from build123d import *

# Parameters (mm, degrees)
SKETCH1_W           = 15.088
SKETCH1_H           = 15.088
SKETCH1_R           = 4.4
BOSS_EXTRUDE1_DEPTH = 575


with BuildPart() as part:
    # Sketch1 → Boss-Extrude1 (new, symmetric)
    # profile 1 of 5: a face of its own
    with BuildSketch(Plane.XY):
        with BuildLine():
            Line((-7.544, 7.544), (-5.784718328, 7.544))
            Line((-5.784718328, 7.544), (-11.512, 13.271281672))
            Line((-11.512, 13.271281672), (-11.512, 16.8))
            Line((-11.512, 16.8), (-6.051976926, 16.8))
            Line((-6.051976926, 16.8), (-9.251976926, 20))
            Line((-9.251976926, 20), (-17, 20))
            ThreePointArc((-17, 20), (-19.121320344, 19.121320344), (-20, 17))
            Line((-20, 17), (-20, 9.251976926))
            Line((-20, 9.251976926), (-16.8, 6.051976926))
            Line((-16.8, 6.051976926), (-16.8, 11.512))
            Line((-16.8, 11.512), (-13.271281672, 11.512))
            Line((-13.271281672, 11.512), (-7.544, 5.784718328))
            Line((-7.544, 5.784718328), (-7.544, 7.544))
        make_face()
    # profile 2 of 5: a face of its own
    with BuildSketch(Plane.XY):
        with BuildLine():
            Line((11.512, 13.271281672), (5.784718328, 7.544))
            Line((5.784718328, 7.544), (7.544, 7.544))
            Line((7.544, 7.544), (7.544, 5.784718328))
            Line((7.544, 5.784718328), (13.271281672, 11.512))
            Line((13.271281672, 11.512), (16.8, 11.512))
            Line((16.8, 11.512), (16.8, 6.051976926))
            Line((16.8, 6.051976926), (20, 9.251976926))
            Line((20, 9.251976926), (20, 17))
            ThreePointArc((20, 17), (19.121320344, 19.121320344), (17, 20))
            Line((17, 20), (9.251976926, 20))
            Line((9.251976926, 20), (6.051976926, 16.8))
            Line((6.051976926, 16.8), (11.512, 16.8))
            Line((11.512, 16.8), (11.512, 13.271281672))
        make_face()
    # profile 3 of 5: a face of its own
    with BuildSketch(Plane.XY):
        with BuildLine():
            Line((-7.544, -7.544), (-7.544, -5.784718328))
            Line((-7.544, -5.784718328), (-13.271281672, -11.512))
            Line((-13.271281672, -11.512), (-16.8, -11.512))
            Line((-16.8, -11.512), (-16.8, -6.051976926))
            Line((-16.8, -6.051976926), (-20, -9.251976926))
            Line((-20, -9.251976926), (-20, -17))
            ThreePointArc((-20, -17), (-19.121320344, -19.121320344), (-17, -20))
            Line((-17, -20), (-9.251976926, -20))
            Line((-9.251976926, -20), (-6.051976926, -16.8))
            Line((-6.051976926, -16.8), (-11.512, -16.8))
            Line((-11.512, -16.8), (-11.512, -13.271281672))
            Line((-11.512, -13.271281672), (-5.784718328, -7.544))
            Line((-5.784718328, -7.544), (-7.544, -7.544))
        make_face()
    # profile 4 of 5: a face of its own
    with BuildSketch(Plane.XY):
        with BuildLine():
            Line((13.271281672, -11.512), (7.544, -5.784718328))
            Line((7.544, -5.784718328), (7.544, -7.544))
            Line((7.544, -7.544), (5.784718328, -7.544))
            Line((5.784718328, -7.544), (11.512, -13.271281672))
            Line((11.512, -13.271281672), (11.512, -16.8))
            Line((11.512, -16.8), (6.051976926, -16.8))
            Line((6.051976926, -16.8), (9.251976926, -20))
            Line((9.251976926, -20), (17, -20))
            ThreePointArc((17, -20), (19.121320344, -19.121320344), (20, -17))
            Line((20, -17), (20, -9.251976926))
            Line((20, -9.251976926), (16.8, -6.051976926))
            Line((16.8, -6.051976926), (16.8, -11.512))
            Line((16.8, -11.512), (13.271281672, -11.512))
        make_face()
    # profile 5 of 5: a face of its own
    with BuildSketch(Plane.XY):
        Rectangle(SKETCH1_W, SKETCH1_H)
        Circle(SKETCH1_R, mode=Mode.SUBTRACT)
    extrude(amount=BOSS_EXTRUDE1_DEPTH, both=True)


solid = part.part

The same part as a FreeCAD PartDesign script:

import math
import FreeCAD as App
import Part
import Sketcher
Q = App.Units.Quantity

doc = App.newDocument("Part")
body = doc.addObject("PartDesign::Body", "Body")

# Sketch on XY plane
sketch1 = body.newObject("Sketcher::SketchObject", "Sketch")
sketch1.AttachmentSupport = (doc.getObject("XY_Plane"), [""])
sketch1.MapMode = "FlatFace"
sketch1.addGeometry(Part.LineSegment(App.Vector(-5.8, 7.5, 0), App.Vector(-11.5, 13.3, 0)), False)
sketch1.addGeometry(Part.LineSegment(App.Vector(-11.5, 13.3, 0), App.Vector(-11.5, 16.8, 0)), False)
sketch1.addGeometry(Part.LineSegment(App.Vector(-11.5, 16.8, 0), App.Vector(-6.1, 16.8, 0)), False)
sketch1.addGeometry(Part.LineSegment(App.Vector(-6.1, 16.8, 0), App.Vector(-9.3, 20, 0)), False)
sketch1.addGeometry(Part.LineSegment(App.Vector(-9.3, 20, 0), App.Vector(-17, 20, 0)), False)
sketch1.addGeometry(Part.ArcOfCircle(Part.Circle(App.Vector(-17, 17, 0), App.Vector(0, 0, 1), 3), math.radians(90), math.radians(180)), False)
sketch1.addGeometry(Part.LineSegment(App.Vector(-20, 17, 0), App.Vector(-20, 9.3, 0)), False)
sketch1.addGeometry(Part.LineSegment(App.Vector(-20, 9.3, 0), App.Vector(-16.8, 6.1, 0)), False)
sketch1.addGeometry(Part.LineSegment(App.Vector(-16.8, 6.1, 0), App.Vector(-16.8, 11.5, 0)), False)
sketch1.addGeometry(Part.LineSegment(App.Vector(-16.8, 11.5, 0), App.Vector(-13.3, 11.5, 0)), False)
sketch1.addGeometry(Part.LineSegment(App.Vector(-13.3, 11.5, 0), App.Vector(-7.5, 5.8, 0)), False)
sketch1.addGeometry(Part.LineSegment(App.Vector(-7.5, 5.8, 0), App.Vector(-7.5, -5.8, 0)), False)
sketch1.addGeometry(Part.LineSegment(App.Vector(-7.5, -5.8, 0), App.Vector(-13.3, -11.5, 0)), False)
sketch1.addGeometry(Part.LineSegment(App.Vector(-13.3, -11.5, 0), App.Vector(-16.8, -11.5, 0)), False)
sketch1.addGeometry(Part.LineSegment(App.Vector(-16.8, -11.5, 0), App.Vector(-16.8, -6.1, 0)), False)
sketch1.addGeometry(Part.LineSegment(App.Vector(-16.8, -6.1, 0), App.Vector(-20, -9.3, 0)), False)
sketch1.addGeometry(Part.LineSegment(App.Vector(-20, -9.3, 0), App.Vector(-20, -17, 0)), False)
sketch1.addGeometry(Part.ArcOfCircle(Part.Circle(App.Vector(-17, -17, 0), App.Vector(0, 0, 1), 3), math.radians(180), math.radians(270)), False)
sketch1.addGeometry(Part.LineSegment(App.Vector(-17, -20, 0), App.Vector(-9.3, -20, 0)), False)
sketch1.addGeometry(Part.LineSegment(App.Vector(-9.3, -20, 0), App.Vector(-6.1, -16.8, 0)), False)
sketch1.addGeometry(Part.LineSegment(App.Vector(-6.1, -16.8, 0), App.Vector(-11.5, -16.8, 0)), False)
sketch1.addGeometry(Part.LineSegment(App.Vector(-11.5, -16.8, 0), App.Vector(-11.5, -13.3, 0)), False)
sketch1.addGeometry(Part.LineSegment(App.Vector(-11.5, -13.3, 0), App.Vector(-5.8, -7.5, 0)), False)
sketch1.addGeometry(Part.LineSegment(App.Vector(-5.8, -7.5, 0), App.Vector(5.8, -7.5, 0)), False)
sketch1.addGeometry(Part.LineSegment(App.Vector(5.8, -7.5, 0), App.Vector(11.5, -13.3, 0)), False)
sketch1.addGeometry(Part.LineSegment(App.Vector(11.5, -13.3, 0), App.Vector(11.5, -16.8, 0)), False)
sketch1.addGeometry(Part.LineSegment(App.Vector(11.5, -16.8, 0), App.Vector(6.1, -16.8, 0)), False)
sketch1.addGeometry(Part.LineSegment(App.Vector(6.1, -16.8, 0), App.Vector(9.3, -20, 0)), False)
sketch1.addGeometry(Part.LineSegment(App.Vector(9.3, -20, 0), App.Vector(17, -20, 0)), False)
sketch1.addGeometry(Part.ArcOfCircle(Part.Circle(App.Vector(17, -17, 0), App.Vector(0, 0, 1), 3), math.radians(-90), math.radians(0)), False)
sketch1.addGeometry(Part.LineSegment(App.Vector(20, -17, 0), App.Vector(20, -9.3, 0)), False)
sketch1.addGeometry(Part.LineSegment(App.Vector(20, -9.3, 0), App.Vector(16.8, -6.1, 0)), False)
sketch1.addGeometry(Part.LineSegment(App.Vector(16.8, -6.1, 0), App.Vector(16.8, -11.5, 0)), False)
sketch1.addGeometry(Part.LineSegment(App.Vector(16.8, -11.5, 0), App.Vector(13.3, -11.5, 0)), False)
sketch1.addGeometry(Part.LineSegment(App.Vector(13.3, -11.5, 0), App.Vector(7.5, -5.8, 0)), False)
sketch1.addGeometry(Part.LineSegment(App.Vector(7.5, -5.8, 0), App.Vector(7.5, 5.8, 0)), False)
sketch1.addGeometry(Part.LineSegment(App.Vector(7.5, 5.8, 0), App.Vector(13.3, 11.5, 0)), False)
sketch1.addGeometry(Part.LineSegment(App.Vector(13.3, 11.5, 0), App.Vector(16.8, 11.5, 0)), False)
sketch1.addGeometry(Part.LineSegment(App.Vector(16.8, 11.5, 0), App.Vector(16.8, 6.1, 0)), False)
sketch1.addGeometry(Part.LineSegment(App.Vector(16.8, 6.1, 0), App.Vector(20, 9.3, 0)), False)
sketch1.addGeometry(Part.LineSegment(App.Vector(20, 9.3, 0), App.Vector(20, 17, 0)), False)
sketch1.addGeometry(Part.ArcOfCircle(Part.Circle(App.Vector(17, 17, 0), App.Vector(0, 0, 1), 3), math.radians(0), math.radians(90)), False)
sketch1.addGeometry(Part.LineSegment(App.Vector(17, 20, 0), App.Vector(9.3, 20, 0)), False)
sketch1.addGeometry(Part.LineSegment(App.Vector(9.3, 20, 0), App.Vector(6.1, 16.8, 0)), False)
sketch1.addGeometry(Part.LineSegment(App.Vector(6.1, 16.8, 0), App.Vector(11.5, 16.8, 0)), False)
sketch1.addGeometry(Part.LineSegment(App.Vector(11.5, 16.8, 0), App.Vector(11.5, 13.3, 0)), False)
sketch1.addGeometry(Part.LineSegment(App.Vector(11.5, 13.3, 0), App.Vector(5.8, 7.5, 0)), False)
sketch1.addGeometry(Part.LineSegment(App.Vector(5.8, 7.5, 0), App.Vector(-5.8, 7.5, 0)), False)
sketch1.addGeometry(Part.Circle(App.Vector(0, 0, 0), App.Vector(0, 0, 1), 4.4), False)
sketch1.addConstraint(Sketcher.Constraint("Coincident", 0, 2, 1, 1))
sketch1.addConstraint(Sketcher.Constraint("Coincident", 1, 2, 2, 1))
sketch1.addConstraint(Sketcher.Constraint("Coincident", 2, 2, 3, 1))
sketch1.addConstraint(Sketcher.Constraint("Coincident", 3, 2, 4, 1))
sketch1.addConstraint(Sketcher.Constraint("Tangent", 4, 2, 5, 1))
sketch1.addConstraint(Sketcher.Constraint("Tangent", 5, 2, 6, 1))
sketch1.addConstraint(Sketcher.Constraint("Coincident", 6, 2, 7, 1))
sketch1.addConstraint(Sketcher.Constraint("Coincident", 7, 2, 8, 1))
sketch1.addConstraint(Sketcher.Constraint("Coincident", 8, 2, 9, 1))
sketch1.addConstraint(Sketcher.Constraint("Coincident", 9, 2, 10, 1))
sketch1.addConstraint(Sketcher.Constraint("Coincident", 10, 2, 11, 1))
sketch1.addConstraint(Sketcher.Constraint("Coincident", 11, 2, 12, 1))
sketch1.addConstraint(Sketcher.Constraint("Coincident", 12, 2, 13, 1))
sketch1.addConstraint(Sketcher.Constraint("Coincident", 13, 2, 14, 1))
sketch1.addConstraint(Sketcher.Constraint("Coincident", 14, 2, 15, 1))
sketch1.addConstraint(Sketcher.Constraint("Coincident", 15, 2, 16, 1))
sketch1.addConstraint(Sketcher.Constraint("Tangent", 16, 2, 17, 1))
sketch1.addConstraint(Sketcher.Constraint("Tangent", 17, 2, 18, 1))
sketch1.addConstraint(Sketcher.Constraint("Coincident", 18, 2, 19, 1))
sketch1.addConstraint(Sketcher.Constraint("Coincident", 19, 2, 20, 1))
sketch1.addConstraint(Sketcher.Constraint("Coincident", 20, 2, 21, 1))
sketch1.addConstraint(Sketcher.Constraint("Coincident", 21, 2, 22, 1))
sketch1.addConstraint(Sketcher.Constraint("Coincident", 22, 2, 23, 1))
sketch1.addConstraint(Sketcher.Constraint("Coincident", 23, 2, 24, 1))
sketch1.addConstraint(Sketcher.Constraint("Coincident", 24, 2, 25, 1))
sketch1.addConstraint(Sketcher.Constraint("Coincident", 25, 2, 26, 1))
sketch1.addConstraint(Sketcher.Constraint("Coincident", 26, 2, 27, 1))
sketch1.addConstraint(Sketcher.Constraint("Coincident", 27, 2, 28, 1))
sketch1.addConstraint(Sketcher.Constraint("Tangent", 28, 2, 29, 1))
sketch1.addConstraint(Sketcher.Constraint("Tangent", 29, 2, 30, 1))
sketch1.addConstraint(Sketcher.Constraint("Coincident", 30, 2, 31, 1))
sketch1.addConstraint(Sketcher.Constraint("Coincident", 31, 2, 32, 1))
sketch1.addConstraint(Sketcher.Constraint("Coincident", 32, 2, 33, 1))
sketch1.addConstraint(Sketcher.Constraint("Coincident", 33, 2, 34, 1))
sketch1.addConstraint(Sketcher.Constraint("Coincident", 34, 2, 35, 1))
sketch1.addConstraint(Sketcher.Constraint("Coincident", 35, 2, 36, 1))
sketch1.addConstraint(Sketcher.Constraint("Coincident", 36, 2, 37, 1))
sketch1.addConstraint(Sketcher.Constraint("Coincident", 37, 2, 38, 1))
sketch1.addConstraint(Sketcher.Constraint("Coincident", 38, 2, 39, 1))
sketch1.addConstraint(Sketcher.Constraint("Coincident", 39, 2, 40, 1))
sketch1.addConstraint(Sketcher.Constraint("Tangent", 40, 2, 41, 1))
sketch1.addConstraint(Sketcher.Constraint("Tangent", 41, 2, 42, 1))
sketch1.addConstraint(Sketcher.Constraint("Coincident", 42, 2, 43, 1))
sketch1.addConstraint(Sketcher.Constraint("Coincident", 43, 2, 44, 1))
sketch1.addConstraint(Sketcher.Constraint("Coincident", 44, 2, 45, 1))
sketch1.addConstraint(Sketcher.Constraint("Coincident", 45, 2, 46, 1))
sketch1.addConstraint(Sketcher.Constraint("Coincident", 46, 2, 47, 1))
sketch1.addConstraint(Sketcher.Constraint("Coincident", 47, 2, 0, 1))
sketch1.addConstraint(Sketcher.Constraint("Vertical", 1))
sketch1.addConstraint(Sketcher.Constraint("Horizontal", 2))
sketch1.addConstraint(Sketcher.Constraint("Horizontal", 4))
sketch1.addConstraint(Sketcher.Constraint("Vertical", 6))
sketch1.addConstraint(Sketcher.Constraint("Vertical", 8))
sketch1.addConstraint(Sketcher.Constraint("Horizontal", 9))
sketch1.addConstraint(Sketcher.Constraint("Vertical", 11))
sketch1.addConstraint(Sketcher.Constraint("Horizontal", 13))
sketch1.addConstraint(Sketcher.Constraint("Vertical", 14))
sketch1.addConstraint(Sketcher.Constraint("Vertical", 16))
sketch1.addConstraint(Sketcher.Constraint("Horizontal", 18))
sketch1.addConstraint(Sketcher.Constraint("Horizontal", 20))
sketch1.addConstraint(Sketcher.Constraint("Vertical", 21))
sketch1.addConstraint(Sketcher.Constraint("Horizontal", 23))
sketch1.addConstraint(Sketcher.Constraint("Vertical", 25))
sketch1.addConstraint(Sketcher.Constraint("Horizontal", 26))
sketch1.addConstraint(Sketcher.Constraint("Horizontal", 28))
sketch1.addConstraint(Sketcher.Constraint("Vertical", 30))
sketch1.addConstraint(Sketcher.Constraint("Vertical", 32))
sketch1.addConstraint(Sketcher.Constraint("Horizontal", 33))
sketch1.addConstraint(Sketcher.Constraint("Vertical", 35))
sketch1.addConstraint(Sketcher.Constraint("Horizontal", 37))
sketch1.addConstraint(Sketcher.Constraint("Vertical", 38))
sketch1.addConstraint(Sketcher.Constraint("Vertical", 40))
sketch1.addConstraint(Sketcher.Constraint("Horizontal", 42))
sketch1.addConstraint(Sketcher.Constraint("Horizontal", 44))
sketch1.addConstraint(Sketcher.Constraint("Vertical", 45))
sketch1.addConstraint(Sketcher.Constraint("Horizontal", 47))
sketch1.addConstraint(Sketcher.Constraint("Coincident", 48, 3, -1, 1))
sketch1.addConstraint(Sketcher.Constraint("Equal", 5, 17))
sketch1.addConstraint(Sketcher.Constraint("Equal", 17, 29))
sketch1.addConstraint(Sketcher.Constraint("Equal", 29, 41))
sketch1.addConstraint(Sketcher.Constraint("Symmetric", 5, 3, 29, 3, -1, 1))
sketch1.addConstraint(Sketcher.Constraint("Symmetric", 17, 3, 41, 3, -1, 1))
sketch1.addConstraint(Sketcher.Constraint("Symmetric", 0, 2, 24, 2, -1, 1))
sketch1.addConstraint(Sketcher.Constraint("Symmetric", 2, 2, 26, 2, -1, 1))
sketch1.addConstraint(Sketcher.Constraint("Symmetric", 7, 2, 31, 2, -1, 1))
sketch1.addConstraint(Sketcher.Constraint("Symmetric", 9, 2, 33, 2, -1, 1))
sketch1.addConstraint(Sketcher.Constraint("Symmetric", 10, 2, 34, 2, -1, 1))
sketch1.addConstraint(Sketcher.Constraint("Symmetric", 12, 2, 36, 2, -1, 1))
sketch1.addConstraint(Sketcher.Constraint("Symmetric", 14, 2, 38, 2, -1, 1))
sketch1.addConstraint(Sketcher.Constraint("Symmetric", 19, 2, 43, 2, -1, 1))
sketch1.addConstraint(Sketcher.Constraint("Symmetric", 21, 2, 45, 2, -1, 1))
sketch1.addConstraint(Sketcher.Constraint("Symmetric", 22, 2, 46, 2, -1, 1))
sketch1.addConstraint(Sketcher.Constraint("Symmetric", 17, 3, 29, 3, -2))
sketch1.addConstraint(Sketcher.Constraint("Symmetric", 21, 2, 24, 2, -2))
sketch1.addConstraint(Sketcher.Constraint("Symmetric", 19, 2, 26, 2, -2))
sketch1.addConstraint(Sketcher.Constraint("Symmetric", 14, 2, 31, 2, -2))
sketch1.addConstraint(Sketcher.Constraint("Symmetric", 12, 2, 33, 2, -2))
sketch1.addConstraint(Sketcher.Constraint("Parallel", 0, 3))
sketch1.addConstraint(Sketcher.Constraint("Parallel", 3, 7))
sketch1.addConstraint(Sketcher.Constraint("Parallel", 7, 10))
sketch1.addConstraint(Sketcher.Constraint("Perpendicular", 10, 12))
sketch1.addConstraint(Sketcher.Constraint("Parallel", 12, 15))
sketch1.addConstraint(Sketcher.Constraint("Parallel", 15, 19))
sketch1.addConstraint(Sketcher.Constraint("Parallel", 19, 22))
sketch1.addConstraint(Sketcher.Constraint("Perpendicular", 22, 24))
sketch1.addConstraint(Sketcher.Constraint("Parallel", 24, 27))
sketch1.addConstraint(Sketcher.Constraint("Parallel", 27, 31))
sketch1.addConstraint(Sketcher.Constraint("Perpendicular", 34, 36))
sketch1.addConstraint(Sketcher.Constraint("Parallel", 36, 39))
sketch1.addConstraint(Sketcher.Constraint("Parallel", 39, 43))
sketch1.addConstraint(Sketcher.Constraint("Horizontal", 15, 2, 30, 2))
sketch1.addConstraint(Sketcher.Constraint("Equal", 37, 1))
sketch1.addConstraint(Sketcher.Constraint("Equal", 42, 6))
sketch1.addConstraint(Sketcher.Constraint("Equal", 44, 8))
sketch1.addConstraint(Sketcher.Constraint("Equal", 47, 11))
sketch1.addConstraint(Sketcher.Constraint("Equal", 3, 7))
sketch1.addConstraint(Sketcher.Constraint("Equal", 0, 10))
sketch1.addConstraint(Sketcher.Constraint("Radius", 5, Q("3 mm")))
sketch1.addConstraint(Sketcher.Constraint("Diameter", 48, Q("8.8 mm")))
sketch1.addConstraint(Sketcher.Constraint("DistanceX", 5, 3, -1, 1, Q("17 mm")))
sketch1.addConstraint(Sketcher.Constraint("DistanceY", -1, 1, 1, 2, Q("16.8 mm")))
sketch1.addConstraint(Sketcher.Constraint("DistanceX", 0, 2, -1, 1, Q("11.512 mm")))
sketch1.addConstraint(Sketcher.Constraint("DistanceX", 10, 2, -1, 1, Q("7.544 mm")))
sketch1.addConstraint(Sketcher.Constraint("Distance", 0, Q("8.099599 mm")))
sketch1.addConstraint(Sketcher.Constraint("DistanceX", 2, 1, 2, 2, Q("5.460023 mm")))
pad1 = body.newObject("PartDesign::Pad", "Pad")
pad1.Profile = sketch1
pad1.Length = 1150
pad1.Midplane = True

doc.recompute()
